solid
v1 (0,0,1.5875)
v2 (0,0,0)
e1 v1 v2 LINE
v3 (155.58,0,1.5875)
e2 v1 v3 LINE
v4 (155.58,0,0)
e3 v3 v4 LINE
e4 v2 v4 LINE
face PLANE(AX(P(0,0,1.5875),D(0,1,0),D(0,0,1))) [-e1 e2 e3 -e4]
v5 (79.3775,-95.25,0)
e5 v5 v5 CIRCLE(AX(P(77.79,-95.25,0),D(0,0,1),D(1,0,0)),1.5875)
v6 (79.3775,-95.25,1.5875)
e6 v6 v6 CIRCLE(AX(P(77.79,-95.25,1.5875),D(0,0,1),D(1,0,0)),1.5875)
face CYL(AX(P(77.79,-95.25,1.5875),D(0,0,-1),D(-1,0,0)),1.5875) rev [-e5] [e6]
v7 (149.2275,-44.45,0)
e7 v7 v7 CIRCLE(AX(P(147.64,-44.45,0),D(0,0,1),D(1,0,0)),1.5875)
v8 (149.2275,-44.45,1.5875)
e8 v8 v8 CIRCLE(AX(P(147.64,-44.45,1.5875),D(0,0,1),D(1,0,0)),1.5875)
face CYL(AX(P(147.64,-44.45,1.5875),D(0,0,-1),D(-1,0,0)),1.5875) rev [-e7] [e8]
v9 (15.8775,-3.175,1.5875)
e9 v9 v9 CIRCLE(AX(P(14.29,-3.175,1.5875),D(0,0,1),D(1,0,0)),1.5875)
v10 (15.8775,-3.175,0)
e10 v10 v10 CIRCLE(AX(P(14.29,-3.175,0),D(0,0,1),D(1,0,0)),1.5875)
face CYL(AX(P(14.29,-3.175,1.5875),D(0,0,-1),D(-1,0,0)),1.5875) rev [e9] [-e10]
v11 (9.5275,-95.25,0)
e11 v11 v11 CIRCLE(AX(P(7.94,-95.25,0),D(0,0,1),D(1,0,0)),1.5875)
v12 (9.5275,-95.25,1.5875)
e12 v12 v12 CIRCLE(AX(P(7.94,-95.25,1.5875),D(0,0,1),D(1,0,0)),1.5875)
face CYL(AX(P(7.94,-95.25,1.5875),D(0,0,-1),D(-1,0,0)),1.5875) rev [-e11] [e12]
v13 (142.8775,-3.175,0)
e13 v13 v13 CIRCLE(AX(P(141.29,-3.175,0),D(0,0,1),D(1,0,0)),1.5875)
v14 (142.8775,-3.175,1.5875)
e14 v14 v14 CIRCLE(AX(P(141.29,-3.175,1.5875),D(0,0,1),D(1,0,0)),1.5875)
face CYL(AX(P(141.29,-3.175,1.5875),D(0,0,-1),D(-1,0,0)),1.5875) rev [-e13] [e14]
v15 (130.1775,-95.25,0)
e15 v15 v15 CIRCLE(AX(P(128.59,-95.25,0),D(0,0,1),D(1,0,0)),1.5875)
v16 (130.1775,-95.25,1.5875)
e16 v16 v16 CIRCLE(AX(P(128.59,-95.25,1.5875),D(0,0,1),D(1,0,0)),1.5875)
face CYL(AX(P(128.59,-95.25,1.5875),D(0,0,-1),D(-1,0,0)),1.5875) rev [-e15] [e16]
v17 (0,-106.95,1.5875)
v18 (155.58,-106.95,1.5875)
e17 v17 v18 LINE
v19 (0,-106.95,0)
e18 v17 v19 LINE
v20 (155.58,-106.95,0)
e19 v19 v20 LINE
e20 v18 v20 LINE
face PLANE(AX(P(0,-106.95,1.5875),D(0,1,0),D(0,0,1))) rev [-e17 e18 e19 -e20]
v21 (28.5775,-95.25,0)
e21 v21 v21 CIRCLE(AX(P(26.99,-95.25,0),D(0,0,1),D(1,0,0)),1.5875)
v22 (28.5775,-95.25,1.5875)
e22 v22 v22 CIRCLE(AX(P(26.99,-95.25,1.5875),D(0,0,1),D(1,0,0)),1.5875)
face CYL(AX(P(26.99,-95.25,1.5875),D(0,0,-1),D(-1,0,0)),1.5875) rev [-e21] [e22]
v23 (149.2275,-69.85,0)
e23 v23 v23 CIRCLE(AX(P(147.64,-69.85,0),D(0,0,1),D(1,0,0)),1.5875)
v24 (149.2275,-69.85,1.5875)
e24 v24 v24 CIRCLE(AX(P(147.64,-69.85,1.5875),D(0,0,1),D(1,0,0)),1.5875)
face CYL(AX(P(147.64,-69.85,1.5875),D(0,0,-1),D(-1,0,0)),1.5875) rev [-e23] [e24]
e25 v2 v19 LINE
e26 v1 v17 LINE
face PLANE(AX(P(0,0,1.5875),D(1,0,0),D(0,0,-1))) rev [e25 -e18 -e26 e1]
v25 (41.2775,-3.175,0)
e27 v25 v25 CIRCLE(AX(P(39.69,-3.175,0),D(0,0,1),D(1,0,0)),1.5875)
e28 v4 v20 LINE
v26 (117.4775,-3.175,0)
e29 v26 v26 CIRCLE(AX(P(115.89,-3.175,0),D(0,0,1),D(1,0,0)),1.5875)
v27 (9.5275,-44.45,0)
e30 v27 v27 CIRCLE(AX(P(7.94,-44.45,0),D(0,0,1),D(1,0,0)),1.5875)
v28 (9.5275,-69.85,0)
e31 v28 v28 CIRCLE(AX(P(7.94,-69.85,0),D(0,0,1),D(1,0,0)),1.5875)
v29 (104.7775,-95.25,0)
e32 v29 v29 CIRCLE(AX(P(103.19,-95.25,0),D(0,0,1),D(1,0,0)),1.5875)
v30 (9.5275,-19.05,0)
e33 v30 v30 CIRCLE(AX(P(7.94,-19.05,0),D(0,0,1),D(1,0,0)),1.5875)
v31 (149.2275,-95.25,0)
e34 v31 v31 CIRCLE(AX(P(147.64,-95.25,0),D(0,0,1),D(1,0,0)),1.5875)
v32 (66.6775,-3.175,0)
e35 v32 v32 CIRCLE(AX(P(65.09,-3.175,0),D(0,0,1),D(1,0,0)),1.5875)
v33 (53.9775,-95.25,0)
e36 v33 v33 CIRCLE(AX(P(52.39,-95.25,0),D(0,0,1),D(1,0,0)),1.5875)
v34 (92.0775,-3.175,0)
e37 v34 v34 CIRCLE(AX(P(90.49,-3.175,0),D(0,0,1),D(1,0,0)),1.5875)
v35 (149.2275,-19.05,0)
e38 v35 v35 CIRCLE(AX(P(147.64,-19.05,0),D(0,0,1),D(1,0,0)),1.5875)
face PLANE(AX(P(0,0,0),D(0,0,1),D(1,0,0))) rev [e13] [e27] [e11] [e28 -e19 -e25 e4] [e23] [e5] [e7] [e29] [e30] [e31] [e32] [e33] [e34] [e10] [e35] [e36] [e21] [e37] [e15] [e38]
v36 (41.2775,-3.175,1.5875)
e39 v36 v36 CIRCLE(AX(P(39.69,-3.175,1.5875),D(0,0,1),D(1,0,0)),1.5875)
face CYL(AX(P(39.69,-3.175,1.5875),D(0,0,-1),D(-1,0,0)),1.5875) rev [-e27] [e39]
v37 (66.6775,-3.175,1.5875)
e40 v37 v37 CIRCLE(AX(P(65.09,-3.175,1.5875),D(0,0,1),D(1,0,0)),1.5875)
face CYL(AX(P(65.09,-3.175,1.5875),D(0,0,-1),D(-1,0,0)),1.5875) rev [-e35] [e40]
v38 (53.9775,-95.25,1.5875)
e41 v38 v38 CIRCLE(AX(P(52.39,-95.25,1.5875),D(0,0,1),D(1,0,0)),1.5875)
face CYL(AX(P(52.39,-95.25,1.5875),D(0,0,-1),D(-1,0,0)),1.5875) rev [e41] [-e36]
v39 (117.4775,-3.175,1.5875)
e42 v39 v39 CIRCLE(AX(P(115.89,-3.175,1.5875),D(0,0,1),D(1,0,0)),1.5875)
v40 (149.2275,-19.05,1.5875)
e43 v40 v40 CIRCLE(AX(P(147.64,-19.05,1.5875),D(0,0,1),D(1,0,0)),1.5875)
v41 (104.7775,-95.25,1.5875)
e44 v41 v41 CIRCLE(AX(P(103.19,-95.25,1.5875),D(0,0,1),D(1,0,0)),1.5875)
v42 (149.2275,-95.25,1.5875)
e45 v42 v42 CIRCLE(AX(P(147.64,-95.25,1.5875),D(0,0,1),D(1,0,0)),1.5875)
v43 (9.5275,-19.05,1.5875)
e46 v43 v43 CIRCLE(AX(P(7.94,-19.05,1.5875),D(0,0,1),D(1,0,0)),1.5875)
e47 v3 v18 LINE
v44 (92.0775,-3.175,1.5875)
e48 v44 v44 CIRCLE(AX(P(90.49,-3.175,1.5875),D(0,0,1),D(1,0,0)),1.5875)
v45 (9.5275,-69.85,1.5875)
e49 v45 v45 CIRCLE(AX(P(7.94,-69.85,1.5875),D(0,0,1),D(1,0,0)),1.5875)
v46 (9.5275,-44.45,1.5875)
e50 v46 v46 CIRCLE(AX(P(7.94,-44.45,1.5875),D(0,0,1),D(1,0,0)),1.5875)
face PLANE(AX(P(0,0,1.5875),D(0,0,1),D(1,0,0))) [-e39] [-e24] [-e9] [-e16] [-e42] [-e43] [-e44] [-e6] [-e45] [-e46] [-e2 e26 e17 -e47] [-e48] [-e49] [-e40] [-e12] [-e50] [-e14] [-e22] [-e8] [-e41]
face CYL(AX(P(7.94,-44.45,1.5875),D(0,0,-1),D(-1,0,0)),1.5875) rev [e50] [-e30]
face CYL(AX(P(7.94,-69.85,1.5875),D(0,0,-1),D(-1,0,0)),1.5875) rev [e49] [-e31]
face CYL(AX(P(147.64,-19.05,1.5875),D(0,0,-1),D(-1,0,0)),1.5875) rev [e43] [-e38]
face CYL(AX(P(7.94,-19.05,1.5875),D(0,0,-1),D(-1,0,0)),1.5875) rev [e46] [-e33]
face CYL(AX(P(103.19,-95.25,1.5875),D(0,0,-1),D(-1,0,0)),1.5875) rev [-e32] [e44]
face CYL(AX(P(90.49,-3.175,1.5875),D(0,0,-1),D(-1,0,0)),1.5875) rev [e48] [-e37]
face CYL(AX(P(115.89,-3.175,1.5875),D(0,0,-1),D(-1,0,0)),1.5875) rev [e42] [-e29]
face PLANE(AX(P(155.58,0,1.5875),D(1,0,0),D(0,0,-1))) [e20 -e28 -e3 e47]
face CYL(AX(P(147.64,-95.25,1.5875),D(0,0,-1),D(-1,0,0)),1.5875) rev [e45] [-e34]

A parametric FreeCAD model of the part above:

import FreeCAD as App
import Part
import Sketcher
Q = App.Units.Quantity


def add_polygon(sketch, points):
    """Adds a closed chain of lines whose ends are joined by coincident constraints."""
    first, n = sketch.GeometryCount, len(points)
    for a, b in zip(points, points[1:] + points[:1]):
        sketch.addGeometry(Part.LineSegment(App.Vector(*a, 0), App.Vector(*b, 0)), False)
    for i in range(n):
        sketch.addConstraint(Sketcher.Constraint("Coincident", first + i, 2, first + (i + 1) % n, 1))

doc = App.newDocument("Part")
body = doc.addObject("PartDesign::Body", "Body")

sketch1 = doc.addObject("Sketcher::SketchObject", "Sketch")
body.addObject(sketch1)
sketch1.AttachmentSupport = (doc.XY_Plane, [""])
sketch1.MapMode = "FlatFace"
add_polygon(sketch1, [(0, 0), (0, -107), (155.6, -107), (155.6, 0)])
sketch1.addGeometry(Part.Circle(App.Vector(7.9, -95.2, 0), App.Vector(0, 0, 1), 1.6), False)
sketch1.addGeometry(Part.Circle(App.Vector(27, -95.2, 0), App.Vector(0, 0, 1), 1.6), False)
sketch1.addGeometry(Part.Circle(App.Vector(52.4, -95.2, 0), App.Vector(0, 0, 1), 1.6), False)
sketch1.addGeometry(Part.Circle(App.Vector(7.9, -69.8, 0), App.Vector(0, 0, 1), 1.6), False)
sketch1.addGeometry(Part.Circle(App.Vector(77.8, -95.2, 0), App.Vector(0, 0, 1), 1.6), False)
sketch1.addGeometry(Part.Circle(App.Vector(103.2, -95.2, 0), App.Vector(0, 0, 1), 1.6), False)
sketch1.addGeometry(Part.Circle(App.Vector(128.6, -95.2, 0), App.Vector(0, 0, 1), 1.6), False)
sketch1.addGeometry(Part.Circle(App.Vector(147.6, -95.2, 0), App.Vector(0, 0, 1), 1.6), False)
sketch1.addGeometry(Part.Circle(App.Vector(147.6, -69.8, 0), App.Vector(0, 0, 1), 1.6), False)
sketch1.addGeometry(Part.Circle(App.Vector(7.9, -44.5, 0), App.Vector(0, 0, 1), 1.6), False)
sketch1.addGeometry(Part.Circle(App.Vector(7.9, -19.1, 0), App.Vector(0, 0, 1), 1.6), False)
sketch1.addGeometry(Part.Circle(App.Vector(14.3, -3.2, 0), App.Vector(0, 0, 1), 1.6), False)
sketch1.addGeometry(Part.Circle(App.Vector(39.7, -3.2, 0), App.Vector(0, 0, 1), 1.6), False)
sketch1.addGeometry(Part.Circle(App.Vector(65.1, -3.2, 0), App.Vector(0, 0, 1), 1.6), False)
sketch1.addGeometry(Part.Circle(App.Vector(147.6, -44.5, 0), App.Vector(0, 0, 1), 1.6), False)
sketch1.addGeometry(Part.Circle(App.Vector(90.5, -3.2, 0), App.Vector(0, 0, 1), 1.6), False)
sketch1.addGeometry(Part.Circle(App.Vector(147.6, -19.1, 0), App.Vector(0, 0, 1), 1.6), False)
sketch1.addGeometry(Part.Circle(App.Vector(115.9, -3.2, 0), App.Vector(0, 0, 1), 1.6), False)
sketch1.addGeometry(Part.Circle(App.Vector(141.3, -3.2, 0), App.Vector(0, 0, 1), 1.6), False)
sketch1.addConstraint(Sketcher.Constraint("Vertical", 0))
sketch1.addConstraint(Sketcher.Constraint("Horizontal", 1))
sketch1.addConstraint(Sketcher.Constraint("Vertical", 2))
sketch1.addConstraint(Sketcher.Constraint("Horizontal", 3))
sketch1.addConstraint(Sketcher.Constraint("Coincident", 3, 2, -1, 1))
sketch1.addConstraint(Sketcher.Constraint("Equal", 4, 5))
sketch1.addConstraint(Sketcher.Constraint("Equal", 5, 6))
sketch1.addConstraint(Sketcher.Constraint("Equal", 6, 7))
sketch1.addConstraint(Sketcher.Constraint("Equal", 7, 8))
sketch1.addConstraint(Sketcher.Constraint("Equal", 8, 9))
sketch1.addConstraint(Sketcher.Constraint("Equal", 9, 10))
sketch1.addConstraint(Sketcher.Constraint("Equal", 10, 11))
sketch1.addConstraint(Sketcher.Constraint("Equal", 11, 12))
sketch1.addConstraint(Sketcher.Constraint("Equal", 12, 13))
sketch1.addConstraint(Sketcher.Constraint("Equal", 13, 14))
sketch1.addConstraint(Sketcher.Constraint("Equal", 14, 15))
sketch1.addConstraint(Sketcher.Constraint("Equal", 15, 16))
sketch1.addConstraint(Sketcher.Constraint("Equal", 16, 17))
sketch1.addConstraint(Sketcher.Constraint("Equal", 17, 18))
sketch1.addConstraint(Sketcher.Constraint("Equal", 18, 19))
sketch1.addConstraint(Sketcher.Constraint("Equal", 19, 20))
sketch1.addConstraint(Sketcher.Constraint("Equal", 20, 21))
sketch1.addConstraint(Sketcher.Constraint("Equal", 21, 22))
sketch1.addConstraint(Sketcher.Constraint("Horizontal", 4, 3, 5, 3))
sketch1.addConstraint(Sketcher.Constraint("Horizontal", 5, 3, 6, 3))
sketch1.addConstraint(Sketcher.Constraint("Horizontal", 6, 3, 8, 3))
sketch1.addConstraint(Sketcher.Constraint("Horizontal", 8, 3, 9, 3))
sketch1.addConstraint(Sketcher.Constraint("Horizontal", 9, 3, 10, 3))
sketch1.addConstraint(Sketcher.Constraint("Horizontal", 10, 3, 11, 3))
sketch1.addConstraint(Sketcher.Constraint("Horizontal", 7, 3, 12, 3))
sketch1.addConstraint(Sketcher.Constraint("Horizontal", 15, 3, 16, 3))
sketch1.addConstraint(Sketcher.Constraint("Horizontal", 16, 3, 17, 3))
sketch1.addConstraint(Sketcher.Constraint("Horizontal", 13, 3, 18, 3))
sketch1.addConstraint(Sketcher.Constraint("Horizontal", 17, 3, 19, 3))
sketch1.addConstraint(Sketcher.Constraint("Horizontal", 14, 3, 20, 3))
sketch1.addConstraint(Sketcher.Constraint("Horizontal", 19, 3, 21, 3))
sketch1.addConstraint(Sketcher.Constraint("Horizontal", 21, 3, 22, 3))
sketch1.addConstraint(Sketcher.Constraint("Vertical", 4, 3, 7, 3))
sketch1.addConstraint(Sketcher.Constraint("Vertical", 11, 3, 12, 3))
sketch1.addConstraint(Sketcher.Constraint("Vertical", 7, 3, 13, 3))
sketch1.addConstraint(Sketcher.Constraint("Vertical", 13, 3, 14, 3))
sketch1.addConstraint(Sketcher.Constraint("Vertical", 12, 3, 18, 3))
sketch1.addConstraint(Sketcher.Constraint("Vertical", 18, 3, 20, 3))
sketch1.addConstraint(Sketcher.Constraint("Diameter", 4, Q("0.125 in")))
sketch1.addConstraint(Sketcher.Constraint("DistanceX", 5, 3, 6, 3, Q("1 in")))
sketch1.addConstraint(Sketcher.Constraint("DistanceY", 4, 3, 7, 3, Q("1 in")))
sketch1.addConstraint(Sketcher.Constraint("DistanceX", 6, 3, 8, 3, Q("1 in")))
sketch1.addConstraint(Sketcher.Constraint("DistanceX", 8, 3, 9, 3, Q("1 in")))
sketch1.addConstraint(Sketcher.Constraint("DistanceX", 9, 3, 10, 3, Q("1 in")))
sketch1.addConstraint(Sketcher.Constraint("DistanceY", 7, 3, 13, 3, Q("1 in")))
sketch1.addConstraint(Sketcher.Constraint("DistanceY", 13, 3, 14, 3, Q("1 in")))
sketch1.addConstraint(Sketcher.Constraint("DistanceX", 15, 3, 16, 3, Q("1 in")))
sketch1.addConstraint(Sketcher.Constraint("DistanceX", 16, 3, 17, 3, Q("1 in")))
sketch1.addConstraint(Sketcher.Constraint("DistanceX", 17, 3, 19, 3, Q("1 in")))
sketch1.addConstraint(Sketcher.Constraint("DistanceX", 19, 3, 21, 3, Q("1 in")))
sketch1.addConstraint(Sketcher.Constraint("DistanceX", 21, 3, 22, 3, Q("1 in")))
sketch1.addConstraint(Sketcher.Constraint("DistanceX", 15, 3, 5, 3, Q("0.5 in")))
sketch1.addConstraint(Sketcher.Constraint("DistanceY", 4, 3, -1, 1, Q("3.75 in")))
sketch1.addConstraint(Sketcher.Constraint("DistanceX", 4, 3, 5, 3, Q("0.75 in")))
sketch1.addConstraint(Sketcher.Constraint("DistanceX", 10, 3, 11, 3, Q("0.75 in")))
sketch1.addConstraint(Sketcher.Constraint("DistanceY", 15, 3, -1, 1, Q("0.125 in")))
sketch1.addConstraint(Sketcher.Constraint("DistanceX", 1, 1, 1, 2, Q("155.58 mm")))
sketch1.addConstraint(Sketcher.Constraint("DistanceY", 0, 2, 0, 1, Q("106.95 mm")))
sketch1.addConstraint(Sketcher.Constraint("DistanceX", -1, 1, 4, 3, Q("7.94 mm")))
pad1 = doc.addObject("PartDesign::Pad", "Pad")
body.addObject(pad1)
pad1.Profile = sketch1
pad1.Length = Q("0.0625 in")

doc.recompute()
